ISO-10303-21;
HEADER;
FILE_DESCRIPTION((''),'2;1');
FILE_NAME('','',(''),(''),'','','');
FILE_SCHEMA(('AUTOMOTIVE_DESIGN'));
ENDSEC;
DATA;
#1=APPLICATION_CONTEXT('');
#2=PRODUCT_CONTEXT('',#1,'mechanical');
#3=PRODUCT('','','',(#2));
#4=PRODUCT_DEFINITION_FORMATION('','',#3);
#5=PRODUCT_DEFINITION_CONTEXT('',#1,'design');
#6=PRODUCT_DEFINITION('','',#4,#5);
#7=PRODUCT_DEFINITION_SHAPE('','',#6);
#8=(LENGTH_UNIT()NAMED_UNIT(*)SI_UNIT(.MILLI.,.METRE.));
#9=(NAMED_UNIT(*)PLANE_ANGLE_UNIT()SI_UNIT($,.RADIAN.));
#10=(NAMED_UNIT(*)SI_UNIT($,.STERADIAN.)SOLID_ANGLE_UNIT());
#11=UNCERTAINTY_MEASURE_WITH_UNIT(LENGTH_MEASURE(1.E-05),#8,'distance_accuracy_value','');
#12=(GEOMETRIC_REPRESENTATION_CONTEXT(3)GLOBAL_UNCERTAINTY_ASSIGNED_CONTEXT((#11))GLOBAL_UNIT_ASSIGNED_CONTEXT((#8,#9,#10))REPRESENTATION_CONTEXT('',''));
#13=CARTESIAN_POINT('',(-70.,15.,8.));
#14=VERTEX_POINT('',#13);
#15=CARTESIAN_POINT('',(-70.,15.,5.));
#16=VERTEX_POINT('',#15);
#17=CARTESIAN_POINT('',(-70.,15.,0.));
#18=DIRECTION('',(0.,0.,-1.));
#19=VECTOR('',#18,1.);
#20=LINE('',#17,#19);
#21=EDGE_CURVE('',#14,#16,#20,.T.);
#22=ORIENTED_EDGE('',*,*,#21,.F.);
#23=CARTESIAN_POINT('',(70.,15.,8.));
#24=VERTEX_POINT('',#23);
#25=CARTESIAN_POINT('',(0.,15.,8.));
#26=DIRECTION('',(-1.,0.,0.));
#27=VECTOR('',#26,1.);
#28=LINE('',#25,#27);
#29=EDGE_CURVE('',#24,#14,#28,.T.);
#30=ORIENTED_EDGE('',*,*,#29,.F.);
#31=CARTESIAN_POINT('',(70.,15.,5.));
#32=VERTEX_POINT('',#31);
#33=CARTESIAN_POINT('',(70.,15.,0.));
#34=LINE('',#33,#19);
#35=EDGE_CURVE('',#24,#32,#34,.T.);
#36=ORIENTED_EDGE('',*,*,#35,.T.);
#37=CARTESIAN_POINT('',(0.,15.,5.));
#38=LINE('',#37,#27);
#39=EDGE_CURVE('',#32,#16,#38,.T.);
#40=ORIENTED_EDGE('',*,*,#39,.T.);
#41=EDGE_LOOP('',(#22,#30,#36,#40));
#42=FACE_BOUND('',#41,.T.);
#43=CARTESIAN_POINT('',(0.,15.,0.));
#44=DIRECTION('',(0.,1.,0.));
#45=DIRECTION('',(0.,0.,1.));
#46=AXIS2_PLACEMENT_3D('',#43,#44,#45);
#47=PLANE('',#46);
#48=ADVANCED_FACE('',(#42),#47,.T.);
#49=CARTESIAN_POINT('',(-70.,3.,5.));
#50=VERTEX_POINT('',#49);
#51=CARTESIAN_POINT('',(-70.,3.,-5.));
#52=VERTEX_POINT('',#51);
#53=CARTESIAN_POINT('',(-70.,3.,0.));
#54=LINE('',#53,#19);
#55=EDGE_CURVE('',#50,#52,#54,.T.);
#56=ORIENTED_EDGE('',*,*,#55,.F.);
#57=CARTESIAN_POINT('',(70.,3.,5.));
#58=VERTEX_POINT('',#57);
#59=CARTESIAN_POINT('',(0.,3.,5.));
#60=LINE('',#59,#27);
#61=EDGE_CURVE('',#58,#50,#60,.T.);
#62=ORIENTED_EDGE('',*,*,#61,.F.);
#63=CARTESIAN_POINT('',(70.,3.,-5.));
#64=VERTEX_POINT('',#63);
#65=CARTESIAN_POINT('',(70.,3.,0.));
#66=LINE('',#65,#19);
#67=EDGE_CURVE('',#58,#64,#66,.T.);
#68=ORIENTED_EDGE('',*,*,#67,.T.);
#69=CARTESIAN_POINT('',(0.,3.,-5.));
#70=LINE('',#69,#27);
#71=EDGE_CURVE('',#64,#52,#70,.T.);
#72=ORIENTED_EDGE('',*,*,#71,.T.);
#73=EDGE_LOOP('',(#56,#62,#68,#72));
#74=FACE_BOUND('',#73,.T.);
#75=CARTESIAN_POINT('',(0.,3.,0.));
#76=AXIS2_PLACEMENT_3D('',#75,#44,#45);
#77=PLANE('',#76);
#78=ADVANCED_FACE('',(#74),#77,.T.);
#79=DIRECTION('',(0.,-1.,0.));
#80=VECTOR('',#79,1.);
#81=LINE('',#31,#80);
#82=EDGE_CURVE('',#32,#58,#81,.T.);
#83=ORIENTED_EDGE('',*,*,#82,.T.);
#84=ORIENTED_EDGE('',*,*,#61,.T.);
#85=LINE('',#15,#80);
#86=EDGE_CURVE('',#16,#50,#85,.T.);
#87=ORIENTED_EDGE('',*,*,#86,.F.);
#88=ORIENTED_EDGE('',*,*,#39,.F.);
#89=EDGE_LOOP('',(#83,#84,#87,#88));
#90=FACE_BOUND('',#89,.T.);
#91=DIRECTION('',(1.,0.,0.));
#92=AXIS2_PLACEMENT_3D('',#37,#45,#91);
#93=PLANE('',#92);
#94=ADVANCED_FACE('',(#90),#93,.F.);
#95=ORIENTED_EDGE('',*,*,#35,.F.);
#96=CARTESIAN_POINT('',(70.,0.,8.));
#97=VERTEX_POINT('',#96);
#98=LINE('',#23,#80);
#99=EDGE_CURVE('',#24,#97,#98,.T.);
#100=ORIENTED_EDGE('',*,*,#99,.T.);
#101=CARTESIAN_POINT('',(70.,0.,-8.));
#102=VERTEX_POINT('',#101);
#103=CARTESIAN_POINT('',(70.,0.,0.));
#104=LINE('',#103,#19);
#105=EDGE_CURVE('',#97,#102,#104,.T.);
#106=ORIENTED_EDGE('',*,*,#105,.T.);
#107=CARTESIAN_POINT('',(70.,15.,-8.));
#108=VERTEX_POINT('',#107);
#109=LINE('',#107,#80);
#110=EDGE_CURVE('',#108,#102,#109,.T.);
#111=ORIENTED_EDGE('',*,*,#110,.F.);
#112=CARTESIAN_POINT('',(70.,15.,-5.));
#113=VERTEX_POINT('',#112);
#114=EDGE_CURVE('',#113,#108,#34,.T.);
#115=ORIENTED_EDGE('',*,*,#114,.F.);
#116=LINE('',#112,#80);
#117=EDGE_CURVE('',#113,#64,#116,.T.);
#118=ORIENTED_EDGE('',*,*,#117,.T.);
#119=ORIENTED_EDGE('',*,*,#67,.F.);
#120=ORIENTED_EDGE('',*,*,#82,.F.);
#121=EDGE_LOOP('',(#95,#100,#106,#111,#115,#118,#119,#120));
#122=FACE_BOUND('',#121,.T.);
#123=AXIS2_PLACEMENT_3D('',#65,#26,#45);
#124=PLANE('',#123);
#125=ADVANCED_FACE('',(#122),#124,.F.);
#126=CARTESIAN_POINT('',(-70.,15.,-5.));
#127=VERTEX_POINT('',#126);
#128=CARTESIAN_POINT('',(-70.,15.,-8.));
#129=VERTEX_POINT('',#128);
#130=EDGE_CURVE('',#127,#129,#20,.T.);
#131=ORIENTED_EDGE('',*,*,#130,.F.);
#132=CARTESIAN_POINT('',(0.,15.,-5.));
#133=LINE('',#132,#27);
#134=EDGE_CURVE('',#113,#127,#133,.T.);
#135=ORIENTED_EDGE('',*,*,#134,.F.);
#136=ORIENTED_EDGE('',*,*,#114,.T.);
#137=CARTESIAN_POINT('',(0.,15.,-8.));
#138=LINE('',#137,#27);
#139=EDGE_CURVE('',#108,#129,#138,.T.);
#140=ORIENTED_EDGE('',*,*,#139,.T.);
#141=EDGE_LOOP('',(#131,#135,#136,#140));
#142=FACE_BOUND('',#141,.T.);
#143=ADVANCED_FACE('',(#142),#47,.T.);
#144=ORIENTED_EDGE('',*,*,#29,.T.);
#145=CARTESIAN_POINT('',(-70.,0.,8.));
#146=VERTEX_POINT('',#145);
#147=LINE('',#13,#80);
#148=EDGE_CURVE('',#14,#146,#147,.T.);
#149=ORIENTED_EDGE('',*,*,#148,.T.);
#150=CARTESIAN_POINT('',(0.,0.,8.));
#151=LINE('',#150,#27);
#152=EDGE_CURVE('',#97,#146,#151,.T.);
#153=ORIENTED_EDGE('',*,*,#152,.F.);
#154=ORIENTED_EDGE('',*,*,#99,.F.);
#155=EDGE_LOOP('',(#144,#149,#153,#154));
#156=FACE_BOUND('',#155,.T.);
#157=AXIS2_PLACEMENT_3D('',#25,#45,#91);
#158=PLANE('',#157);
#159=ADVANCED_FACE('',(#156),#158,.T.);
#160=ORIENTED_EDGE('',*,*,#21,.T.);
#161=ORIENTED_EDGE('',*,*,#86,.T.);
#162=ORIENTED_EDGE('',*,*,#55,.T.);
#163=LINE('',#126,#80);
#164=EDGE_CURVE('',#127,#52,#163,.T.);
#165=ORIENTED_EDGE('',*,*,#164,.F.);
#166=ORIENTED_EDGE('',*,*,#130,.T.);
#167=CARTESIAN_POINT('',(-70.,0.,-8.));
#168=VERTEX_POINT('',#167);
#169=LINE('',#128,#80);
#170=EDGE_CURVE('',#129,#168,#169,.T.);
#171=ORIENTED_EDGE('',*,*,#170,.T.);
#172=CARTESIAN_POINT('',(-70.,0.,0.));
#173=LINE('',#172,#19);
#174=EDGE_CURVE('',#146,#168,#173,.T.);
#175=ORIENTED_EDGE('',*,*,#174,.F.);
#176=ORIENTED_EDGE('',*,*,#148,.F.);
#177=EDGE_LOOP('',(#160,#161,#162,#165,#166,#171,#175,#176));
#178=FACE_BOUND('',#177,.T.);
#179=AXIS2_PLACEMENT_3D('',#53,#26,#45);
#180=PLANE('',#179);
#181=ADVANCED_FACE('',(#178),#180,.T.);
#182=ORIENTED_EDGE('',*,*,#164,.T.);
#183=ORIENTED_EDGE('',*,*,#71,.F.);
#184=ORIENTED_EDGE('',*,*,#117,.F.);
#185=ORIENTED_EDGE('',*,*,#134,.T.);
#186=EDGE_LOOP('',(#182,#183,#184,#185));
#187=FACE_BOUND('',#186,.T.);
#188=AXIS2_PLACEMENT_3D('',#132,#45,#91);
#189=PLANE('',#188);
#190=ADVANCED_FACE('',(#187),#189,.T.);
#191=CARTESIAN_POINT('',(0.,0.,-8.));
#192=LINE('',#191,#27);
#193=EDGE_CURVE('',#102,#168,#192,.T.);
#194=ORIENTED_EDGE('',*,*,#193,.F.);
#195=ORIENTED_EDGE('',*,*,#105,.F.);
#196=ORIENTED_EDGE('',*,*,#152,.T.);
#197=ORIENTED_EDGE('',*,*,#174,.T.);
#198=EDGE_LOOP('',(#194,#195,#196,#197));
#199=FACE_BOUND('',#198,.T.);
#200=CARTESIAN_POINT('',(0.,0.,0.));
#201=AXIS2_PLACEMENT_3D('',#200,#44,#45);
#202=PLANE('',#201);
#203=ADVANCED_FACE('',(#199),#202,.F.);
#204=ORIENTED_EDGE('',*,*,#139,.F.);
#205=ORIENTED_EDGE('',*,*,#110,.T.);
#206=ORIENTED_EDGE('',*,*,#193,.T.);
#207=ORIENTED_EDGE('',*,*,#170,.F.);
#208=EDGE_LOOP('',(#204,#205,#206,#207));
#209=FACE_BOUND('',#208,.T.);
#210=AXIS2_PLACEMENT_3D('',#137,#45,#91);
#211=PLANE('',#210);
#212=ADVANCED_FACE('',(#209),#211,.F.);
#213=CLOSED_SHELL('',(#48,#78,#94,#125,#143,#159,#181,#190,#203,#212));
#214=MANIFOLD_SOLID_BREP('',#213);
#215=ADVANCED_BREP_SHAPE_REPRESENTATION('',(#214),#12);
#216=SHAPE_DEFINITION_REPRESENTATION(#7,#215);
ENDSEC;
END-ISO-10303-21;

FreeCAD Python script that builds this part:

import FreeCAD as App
import Part
import Sketcher
from FreeCAD import Vector

doc = App.newDocument("Part")
params = doc.addObject("Spreadsheet::Sheet", "Params")
for row, (alias, value) in enumerate([
    ("sketch1_width", "140 mm"),
    ("sketch1_height", "10 mm"),
    ("pad1_length", "3 mm"),
    ("sketch2_width", "140 mm"),
    ("sketch2_height", "3 mm"),
    ("pad2_length", "15 mm"),
], start=1):
    params.set(f"A{row}", alias)
    params.set(f"B{row}", "=" + value)
    params.setAlias(f"B{row}", alias)

body = doc.addObject("PartDesign::Body", "Body")

# Sketch on XZ plane
sketch1 = body.newObject("Sketcher::SketchObject", "Sketch")
sketch1.AttachmentSupport = (doc.getObject("XZ_Plane"), [""])
sketch1.MapMode = "FlatFace"
sketch1.addGeometry([
    Part.LineSegment(Vector(-70, -5, 0), Vector(-70, 5, 0)),
    Part.LineSegment(Vector(-70, 5, 0), Vector(70, 5, 0)),
    Part.LineSegment(Vector(70, 5, 0), Vector(70, -5, 0)),
    Part.LineSegment(Vector(70, -5, 0), Vector(-70, -5, 0)),
], False)
sketch1.addConstraint([
    Sketcher.Constraint("Coincident", 0, 2, 1, 1),
    Sketcher.Constraint("Coincident", 1, 2, 2, 1),
    Sketcher.Constraint("Coincident", 2, 2, 3, 1),
    Sketcher.Constraint("Coincident", 3, 2, 0, 1),
    Sketcher.Constraint("Vertical", 0),
    Sketcher.Constraint("Horizontal", 1),
    Sketcher.Constraint("Vertical", 2),
    Sketcher.Constraint("Horizontal", 3),
    Sketcher.Constraint("Symmetric", 0, 2, 2, 2, -1, 1),
    Sketcher.Constraint("DistanceX", 1, 1, 1, 2, 140.0),
    Sketcher.Constraint("DistanceY", 0, 1, 0, 2, 10.0),
])
sketch1.setExpression("Constraints[9]", "Params.sketch1_width")
sketch1.setExpression("Constraints[10]", "Params.sketch1_height")
pad1 = body.newObject("PartDesign::Pad", "Pad")
pad1.Profile = sketch1
pad1.setExpression("Length", "Params.pad1_length")
pad1.Reversed = True

# Sketch on XZ plane
sketch2 = body.newObject("Sketcher::SketchObject", "Sketch001")
sketch2.AttachmentSupport = (doc.getObject("XZ_Plane"), [""])
sketch2.MapMode = "FlatFace"
sketch2.addGeometry([
    Part.LineSegment(Vector(-70, 5, 0), Vector(-70, 8, 0)),  # 0
    Part.LineSegment(Vector(-70, 8, 0), Vector(70, 8, 0)),  # 1
    Part.LineSegment(Vector(70, 8, 0), Vector(70, 5, 0)),  # 2
    Part.LineSegment(Vector(70, 5, 0), Vector(-70, 5, 0)),  # 3
    Part.LineSegment(Vector(-70, -8, 0), Vector(-70, -5, 0)),  # 4
    Part.LineSegment(Vector(-70, -5, 0), Vector(70, -5, 0)),  # 5
    Part.LineSegment(Vector(70, -5, 0), Vector(70, -8, 0)),  # 6
    Part.LineSegment(Vector(70, -8, 0), Vector(-70, -8, 0)),  # 7
], False)
sketch2.addConstraint([
    Sketcher.Constraint("Coincident", 0, 2, 1, 1),
    Sketcher.Constraint("Coincident", 1, 2, 2, 1),
    Sketcher.Constraint("Coincident", 2, 2, 3, 1),
    Sketcher.Constraint("Coincident", 3, 2, 0, 1),
    Sketcher.Constraint("Coincident", 4, 2, 5, 1),
    Sketcher.Constraint("Coincident", 5, 2, 6, 1),
    Sketcher.Constraint("Coincident", 6, 2, 7, 1),
    Sketcher.Constraint("Coincident", 7, 2, 4, 1),
    Sketcher.Constraint("Vertical", 0),
    Sketcher.Constraint("Horizontal", 1),
    Sketcher.Constraint("Vertical", 2),
    Sketcher.Constraint("Horizontal", 3),
    Sketcher.Constraint("Vertical", 4),
    Sketcher.Constraint("Horizontal", 5),
    Sketcher.Constraint("Vertical", 6),
    Sketcher.Constraint("Horizontal", 7),
    Sketcher.Constraint("Symmetric", 2, 2, 4, 2, -1, 1),
    Sketcher.Constraint("Symmetric", 0, 2, 6, 2, -1, 1),
    Sketcher.Constraint("Vertical", 3, 2, 4, 2),
    Sketcher.Constraint("DistanceX", 1, 1, 1, 2, 140.0),
    Sketcher.Constraint("DistanceY", 0, 1, 0, 2, 3.0),
    Sketcher.Constraint("DistanceY", -1, 1, 0, 2, 8.0),
])
sketch2.setExpression("Constraints[19]", "Params.sketch2_width")
sketch2.setExpression("Constraints[20]", "Params.sketch2_height")
pad2 = body.newObject("PartDesign::Pad", "Pad001")
pad2.Profile = sketch2
pad2.setExpression("Length", "Params.pad2_length")
pad2.Reversed = True

doc.recompute()
